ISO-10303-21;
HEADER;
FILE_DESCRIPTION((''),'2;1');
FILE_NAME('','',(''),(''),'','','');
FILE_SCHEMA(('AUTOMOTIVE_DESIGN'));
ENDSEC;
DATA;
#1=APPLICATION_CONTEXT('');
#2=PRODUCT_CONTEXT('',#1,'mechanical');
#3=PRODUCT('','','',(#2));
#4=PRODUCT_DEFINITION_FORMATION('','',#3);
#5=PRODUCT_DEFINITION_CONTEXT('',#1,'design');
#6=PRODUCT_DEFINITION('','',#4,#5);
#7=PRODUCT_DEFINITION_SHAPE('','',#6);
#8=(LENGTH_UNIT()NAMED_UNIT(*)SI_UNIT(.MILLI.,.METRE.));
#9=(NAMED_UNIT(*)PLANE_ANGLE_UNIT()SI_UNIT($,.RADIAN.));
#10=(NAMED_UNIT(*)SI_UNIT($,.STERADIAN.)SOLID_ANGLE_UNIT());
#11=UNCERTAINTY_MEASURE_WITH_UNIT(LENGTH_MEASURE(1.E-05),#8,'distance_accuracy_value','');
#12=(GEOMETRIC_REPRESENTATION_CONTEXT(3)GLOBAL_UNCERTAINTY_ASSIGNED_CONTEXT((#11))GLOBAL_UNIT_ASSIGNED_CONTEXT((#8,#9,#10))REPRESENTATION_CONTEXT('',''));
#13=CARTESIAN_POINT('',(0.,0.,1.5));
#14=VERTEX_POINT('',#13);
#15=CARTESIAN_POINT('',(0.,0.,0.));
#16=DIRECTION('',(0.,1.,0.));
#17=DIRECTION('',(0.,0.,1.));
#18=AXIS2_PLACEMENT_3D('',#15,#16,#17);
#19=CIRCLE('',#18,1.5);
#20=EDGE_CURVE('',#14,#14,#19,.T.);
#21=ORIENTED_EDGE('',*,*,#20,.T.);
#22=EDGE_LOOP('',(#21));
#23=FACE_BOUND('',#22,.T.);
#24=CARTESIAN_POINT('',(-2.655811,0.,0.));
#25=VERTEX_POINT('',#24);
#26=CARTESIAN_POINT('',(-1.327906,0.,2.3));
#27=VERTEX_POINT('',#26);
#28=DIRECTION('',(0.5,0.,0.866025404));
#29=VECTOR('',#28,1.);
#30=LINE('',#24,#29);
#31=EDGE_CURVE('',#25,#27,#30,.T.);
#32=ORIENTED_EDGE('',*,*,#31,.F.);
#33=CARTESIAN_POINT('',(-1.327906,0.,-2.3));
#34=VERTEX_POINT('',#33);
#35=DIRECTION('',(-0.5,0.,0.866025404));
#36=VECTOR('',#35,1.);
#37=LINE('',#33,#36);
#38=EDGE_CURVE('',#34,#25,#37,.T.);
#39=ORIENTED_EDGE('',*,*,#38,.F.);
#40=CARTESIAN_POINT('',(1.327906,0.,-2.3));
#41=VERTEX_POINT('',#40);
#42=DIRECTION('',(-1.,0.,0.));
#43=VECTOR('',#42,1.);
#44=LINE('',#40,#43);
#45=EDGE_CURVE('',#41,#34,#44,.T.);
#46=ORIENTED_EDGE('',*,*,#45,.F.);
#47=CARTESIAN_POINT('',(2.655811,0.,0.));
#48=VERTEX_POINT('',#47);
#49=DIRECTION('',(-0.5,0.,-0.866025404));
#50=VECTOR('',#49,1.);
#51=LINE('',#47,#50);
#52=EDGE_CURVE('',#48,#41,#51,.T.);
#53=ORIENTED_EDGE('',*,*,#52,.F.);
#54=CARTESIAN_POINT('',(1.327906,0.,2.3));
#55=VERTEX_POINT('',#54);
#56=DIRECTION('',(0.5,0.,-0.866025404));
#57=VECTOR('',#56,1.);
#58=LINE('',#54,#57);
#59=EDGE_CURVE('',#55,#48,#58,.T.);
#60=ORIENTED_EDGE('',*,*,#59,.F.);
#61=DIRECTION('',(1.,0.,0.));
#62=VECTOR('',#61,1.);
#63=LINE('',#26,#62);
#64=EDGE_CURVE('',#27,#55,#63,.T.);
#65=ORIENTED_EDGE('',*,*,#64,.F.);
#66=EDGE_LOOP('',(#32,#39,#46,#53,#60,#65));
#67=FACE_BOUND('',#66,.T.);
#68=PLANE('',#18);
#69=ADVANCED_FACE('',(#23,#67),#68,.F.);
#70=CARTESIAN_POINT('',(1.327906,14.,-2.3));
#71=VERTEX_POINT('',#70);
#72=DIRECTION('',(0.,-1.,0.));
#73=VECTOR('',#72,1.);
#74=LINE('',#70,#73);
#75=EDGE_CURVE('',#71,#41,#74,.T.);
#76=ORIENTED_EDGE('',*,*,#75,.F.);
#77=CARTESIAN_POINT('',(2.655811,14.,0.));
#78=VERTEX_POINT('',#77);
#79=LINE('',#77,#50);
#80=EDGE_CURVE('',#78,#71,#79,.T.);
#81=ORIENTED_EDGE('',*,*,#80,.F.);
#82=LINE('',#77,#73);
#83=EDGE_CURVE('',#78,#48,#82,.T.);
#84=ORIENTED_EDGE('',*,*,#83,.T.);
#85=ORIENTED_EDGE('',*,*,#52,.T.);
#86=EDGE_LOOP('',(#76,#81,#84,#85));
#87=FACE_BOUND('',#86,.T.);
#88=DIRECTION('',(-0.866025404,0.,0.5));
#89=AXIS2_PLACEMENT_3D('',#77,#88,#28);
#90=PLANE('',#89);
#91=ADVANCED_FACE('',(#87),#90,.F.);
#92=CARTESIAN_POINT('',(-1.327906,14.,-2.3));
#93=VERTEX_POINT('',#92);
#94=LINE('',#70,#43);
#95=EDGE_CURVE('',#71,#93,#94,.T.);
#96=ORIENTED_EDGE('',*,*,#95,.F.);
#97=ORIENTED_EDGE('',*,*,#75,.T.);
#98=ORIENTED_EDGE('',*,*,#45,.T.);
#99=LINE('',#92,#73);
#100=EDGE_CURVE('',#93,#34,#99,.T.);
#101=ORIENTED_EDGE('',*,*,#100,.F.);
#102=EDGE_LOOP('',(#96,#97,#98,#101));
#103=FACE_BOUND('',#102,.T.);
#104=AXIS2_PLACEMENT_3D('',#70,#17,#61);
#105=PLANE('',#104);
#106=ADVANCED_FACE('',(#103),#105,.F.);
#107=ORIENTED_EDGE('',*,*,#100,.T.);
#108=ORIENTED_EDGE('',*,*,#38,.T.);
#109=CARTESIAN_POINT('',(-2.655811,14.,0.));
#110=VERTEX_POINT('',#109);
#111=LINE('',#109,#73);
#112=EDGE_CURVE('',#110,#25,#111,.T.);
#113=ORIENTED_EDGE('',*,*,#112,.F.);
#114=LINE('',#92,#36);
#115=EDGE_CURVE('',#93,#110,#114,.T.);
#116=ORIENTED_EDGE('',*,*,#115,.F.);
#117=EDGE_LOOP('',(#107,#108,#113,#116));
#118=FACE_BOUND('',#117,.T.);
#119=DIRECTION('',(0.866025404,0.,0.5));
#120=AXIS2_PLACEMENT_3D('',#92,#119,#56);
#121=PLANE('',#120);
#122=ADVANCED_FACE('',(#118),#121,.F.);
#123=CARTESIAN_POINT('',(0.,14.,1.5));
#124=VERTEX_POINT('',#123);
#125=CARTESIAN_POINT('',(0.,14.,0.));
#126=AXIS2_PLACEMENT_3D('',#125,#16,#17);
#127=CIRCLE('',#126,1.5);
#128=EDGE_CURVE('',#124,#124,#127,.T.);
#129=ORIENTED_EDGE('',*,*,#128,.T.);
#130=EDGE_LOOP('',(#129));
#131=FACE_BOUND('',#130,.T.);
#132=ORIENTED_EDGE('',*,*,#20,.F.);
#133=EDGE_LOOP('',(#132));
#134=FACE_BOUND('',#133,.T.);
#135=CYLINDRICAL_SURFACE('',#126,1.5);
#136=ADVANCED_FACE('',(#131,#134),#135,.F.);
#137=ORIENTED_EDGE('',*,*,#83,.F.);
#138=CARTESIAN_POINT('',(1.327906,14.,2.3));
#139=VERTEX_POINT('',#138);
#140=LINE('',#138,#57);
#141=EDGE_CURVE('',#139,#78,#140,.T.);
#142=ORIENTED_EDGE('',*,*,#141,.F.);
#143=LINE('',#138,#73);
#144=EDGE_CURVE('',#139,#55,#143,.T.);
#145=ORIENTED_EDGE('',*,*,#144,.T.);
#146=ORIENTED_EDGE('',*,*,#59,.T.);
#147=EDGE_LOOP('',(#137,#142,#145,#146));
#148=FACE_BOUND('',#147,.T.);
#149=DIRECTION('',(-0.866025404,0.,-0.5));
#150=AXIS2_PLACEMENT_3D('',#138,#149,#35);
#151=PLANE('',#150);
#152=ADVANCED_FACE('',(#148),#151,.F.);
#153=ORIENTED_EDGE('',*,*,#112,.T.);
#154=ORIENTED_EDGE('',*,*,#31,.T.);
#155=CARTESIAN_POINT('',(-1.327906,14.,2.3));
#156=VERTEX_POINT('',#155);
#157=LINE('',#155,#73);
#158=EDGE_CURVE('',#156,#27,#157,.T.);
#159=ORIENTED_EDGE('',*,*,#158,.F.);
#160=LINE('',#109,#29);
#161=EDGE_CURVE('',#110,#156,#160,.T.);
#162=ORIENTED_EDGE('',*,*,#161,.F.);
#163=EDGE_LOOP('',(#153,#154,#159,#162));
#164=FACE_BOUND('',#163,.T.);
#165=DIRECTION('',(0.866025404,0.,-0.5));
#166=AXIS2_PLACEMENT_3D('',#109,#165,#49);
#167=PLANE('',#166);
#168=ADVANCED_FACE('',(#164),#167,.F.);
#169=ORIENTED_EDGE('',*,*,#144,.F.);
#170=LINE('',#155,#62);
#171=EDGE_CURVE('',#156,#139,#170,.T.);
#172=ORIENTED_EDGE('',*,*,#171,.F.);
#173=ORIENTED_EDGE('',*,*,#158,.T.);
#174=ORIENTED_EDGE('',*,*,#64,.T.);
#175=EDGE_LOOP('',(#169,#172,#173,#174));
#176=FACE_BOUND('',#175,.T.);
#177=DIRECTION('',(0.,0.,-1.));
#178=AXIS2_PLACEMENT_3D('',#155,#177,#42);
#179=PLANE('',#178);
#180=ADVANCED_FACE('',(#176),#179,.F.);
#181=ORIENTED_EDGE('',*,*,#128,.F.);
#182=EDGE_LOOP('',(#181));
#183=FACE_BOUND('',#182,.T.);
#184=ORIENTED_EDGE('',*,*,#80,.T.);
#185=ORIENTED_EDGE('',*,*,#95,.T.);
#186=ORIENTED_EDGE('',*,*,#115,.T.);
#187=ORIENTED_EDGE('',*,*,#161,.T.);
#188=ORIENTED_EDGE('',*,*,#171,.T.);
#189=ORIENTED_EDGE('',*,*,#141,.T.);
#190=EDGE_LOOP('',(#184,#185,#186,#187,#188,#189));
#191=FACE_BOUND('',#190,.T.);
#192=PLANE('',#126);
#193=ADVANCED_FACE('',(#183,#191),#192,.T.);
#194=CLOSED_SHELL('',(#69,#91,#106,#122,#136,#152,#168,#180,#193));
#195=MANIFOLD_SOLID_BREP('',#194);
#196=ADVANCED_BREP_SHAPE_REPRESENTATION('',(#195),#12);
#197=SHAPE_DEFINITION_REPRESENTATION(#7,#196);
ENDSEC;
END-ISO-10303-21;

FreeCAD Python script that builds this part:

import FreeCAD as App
import Part
import Sketcher
from FreeCAD import Vector
Q = App.Units.Quantity

doc = App.newDocument("Part")
body = doc.addObject("PartDesign::Body", "Body")

sketch1 = body.newObject("Sketcher::SketchObject", "Sketch")
sketch1.AttachmentSupport = (doc.getObject("XZ_Plane"), [""])
sketch1.MapMode = "FlatFace"
sketch1.addGeometry([
    Part.LineSegment(Vector(2.7, 0, 0), Vector(1.3, -2.3, 0)),
    Part.LineSegment(Vector(1.3, -2.3, 0), Vector(-1.3, -2.3, 0)),
    Part.LineSegment(Vector(-1.3, -2.3, 0), Vector(-2.7, 0, 0)),
    Part.LineSegment(Vector(-2.7, 0, 0), Vector(-1.3, 2.3, 0)),
    Part.LineSegment(Vector(-1.3, 2.3, 0), Vector(1.3, 2.3, 0)),
    Part.LineSegment(Vector(1.3, 2.3, 0), Vector(2.7, 0, 0)),
], False)
sketch1.addConstraint([
    Sketcher.Constraint("Coincident", 0, 2, 1, 1),
    Sketcher.Constraint("Coincident", 1, 2, 2, 1),
    Sketcher.Constraint("Coincident", 2, 2, 3, 1),
    Sketcher.Constraint("Coincident", 3, 2, 4, 1),
    Sketcher.Constraint("Coincident", 4, 2, 5, 1),
    Sketcher.Constraint("Coincident", 5, 2, 0, 1),
    Sketcher.Constraint("Horizontal", 1),
    Sketcher.Constraint("Horizontal", 4),
    Sketcher.Constraint("Symmetric", 0, 2, 3, 2, -1, 1),
    Sketcher.Constraint("Symmetric", 2, 2, 5, 2, -1, 1),
    Sketcher.Constraint("PointOnObject", 2, 2, -1),
    Sketcher.Constraint("Parallel", 2, 5),
    Sketcher.Constraint("Vertical", 1, 2, 3, 2),
    Sketcher.Constraint("Angle", 0, Q("-120 deg")),
    Sketcher.Constraint("DistanceY", 0, 2, -1, 1, 2.3),
    Sketcher.Constraint("DistanceX", 1, 2, 1, 1, 2.655811),
])
pad1 = body.newObject("PartDesign::Pad", "Pad")
pad1.Profile = sketch1
pad1.Length = 14
pad1.Reversed = True

sketch2 = body.newObject("Sketcher::SketchObject", "Sketch001")
sketch2.AttachmentSupport = (doc.getObject("XZ_Plane"), [""])
sketch2.MapMode = "FlatFace"
sketch2.AttachmentOffset = App.Placement(Vector(0, 0, -14), App.Rotation())
sketch2.addGeometry(Part.Circle(Vector(0, 0, 0), Vector(0, 0, 1), 1.5), False)
sketch2.addConstraint([
    Sketcher.Constraint("Coincident", 0, 3, -1, 1),
    Sketcher.Constraint("Diameter", 0, 3.0),
])
doc.recompute()
hole = body.newObject("PartDesign::Hole", "Hole")
hole.Profile = sketch2
hole.ThreadType = "None"
hole.Diameter = 3
hole.DepthType = "ThroughAll"
hole.Reversed = True

doc.recompute()
